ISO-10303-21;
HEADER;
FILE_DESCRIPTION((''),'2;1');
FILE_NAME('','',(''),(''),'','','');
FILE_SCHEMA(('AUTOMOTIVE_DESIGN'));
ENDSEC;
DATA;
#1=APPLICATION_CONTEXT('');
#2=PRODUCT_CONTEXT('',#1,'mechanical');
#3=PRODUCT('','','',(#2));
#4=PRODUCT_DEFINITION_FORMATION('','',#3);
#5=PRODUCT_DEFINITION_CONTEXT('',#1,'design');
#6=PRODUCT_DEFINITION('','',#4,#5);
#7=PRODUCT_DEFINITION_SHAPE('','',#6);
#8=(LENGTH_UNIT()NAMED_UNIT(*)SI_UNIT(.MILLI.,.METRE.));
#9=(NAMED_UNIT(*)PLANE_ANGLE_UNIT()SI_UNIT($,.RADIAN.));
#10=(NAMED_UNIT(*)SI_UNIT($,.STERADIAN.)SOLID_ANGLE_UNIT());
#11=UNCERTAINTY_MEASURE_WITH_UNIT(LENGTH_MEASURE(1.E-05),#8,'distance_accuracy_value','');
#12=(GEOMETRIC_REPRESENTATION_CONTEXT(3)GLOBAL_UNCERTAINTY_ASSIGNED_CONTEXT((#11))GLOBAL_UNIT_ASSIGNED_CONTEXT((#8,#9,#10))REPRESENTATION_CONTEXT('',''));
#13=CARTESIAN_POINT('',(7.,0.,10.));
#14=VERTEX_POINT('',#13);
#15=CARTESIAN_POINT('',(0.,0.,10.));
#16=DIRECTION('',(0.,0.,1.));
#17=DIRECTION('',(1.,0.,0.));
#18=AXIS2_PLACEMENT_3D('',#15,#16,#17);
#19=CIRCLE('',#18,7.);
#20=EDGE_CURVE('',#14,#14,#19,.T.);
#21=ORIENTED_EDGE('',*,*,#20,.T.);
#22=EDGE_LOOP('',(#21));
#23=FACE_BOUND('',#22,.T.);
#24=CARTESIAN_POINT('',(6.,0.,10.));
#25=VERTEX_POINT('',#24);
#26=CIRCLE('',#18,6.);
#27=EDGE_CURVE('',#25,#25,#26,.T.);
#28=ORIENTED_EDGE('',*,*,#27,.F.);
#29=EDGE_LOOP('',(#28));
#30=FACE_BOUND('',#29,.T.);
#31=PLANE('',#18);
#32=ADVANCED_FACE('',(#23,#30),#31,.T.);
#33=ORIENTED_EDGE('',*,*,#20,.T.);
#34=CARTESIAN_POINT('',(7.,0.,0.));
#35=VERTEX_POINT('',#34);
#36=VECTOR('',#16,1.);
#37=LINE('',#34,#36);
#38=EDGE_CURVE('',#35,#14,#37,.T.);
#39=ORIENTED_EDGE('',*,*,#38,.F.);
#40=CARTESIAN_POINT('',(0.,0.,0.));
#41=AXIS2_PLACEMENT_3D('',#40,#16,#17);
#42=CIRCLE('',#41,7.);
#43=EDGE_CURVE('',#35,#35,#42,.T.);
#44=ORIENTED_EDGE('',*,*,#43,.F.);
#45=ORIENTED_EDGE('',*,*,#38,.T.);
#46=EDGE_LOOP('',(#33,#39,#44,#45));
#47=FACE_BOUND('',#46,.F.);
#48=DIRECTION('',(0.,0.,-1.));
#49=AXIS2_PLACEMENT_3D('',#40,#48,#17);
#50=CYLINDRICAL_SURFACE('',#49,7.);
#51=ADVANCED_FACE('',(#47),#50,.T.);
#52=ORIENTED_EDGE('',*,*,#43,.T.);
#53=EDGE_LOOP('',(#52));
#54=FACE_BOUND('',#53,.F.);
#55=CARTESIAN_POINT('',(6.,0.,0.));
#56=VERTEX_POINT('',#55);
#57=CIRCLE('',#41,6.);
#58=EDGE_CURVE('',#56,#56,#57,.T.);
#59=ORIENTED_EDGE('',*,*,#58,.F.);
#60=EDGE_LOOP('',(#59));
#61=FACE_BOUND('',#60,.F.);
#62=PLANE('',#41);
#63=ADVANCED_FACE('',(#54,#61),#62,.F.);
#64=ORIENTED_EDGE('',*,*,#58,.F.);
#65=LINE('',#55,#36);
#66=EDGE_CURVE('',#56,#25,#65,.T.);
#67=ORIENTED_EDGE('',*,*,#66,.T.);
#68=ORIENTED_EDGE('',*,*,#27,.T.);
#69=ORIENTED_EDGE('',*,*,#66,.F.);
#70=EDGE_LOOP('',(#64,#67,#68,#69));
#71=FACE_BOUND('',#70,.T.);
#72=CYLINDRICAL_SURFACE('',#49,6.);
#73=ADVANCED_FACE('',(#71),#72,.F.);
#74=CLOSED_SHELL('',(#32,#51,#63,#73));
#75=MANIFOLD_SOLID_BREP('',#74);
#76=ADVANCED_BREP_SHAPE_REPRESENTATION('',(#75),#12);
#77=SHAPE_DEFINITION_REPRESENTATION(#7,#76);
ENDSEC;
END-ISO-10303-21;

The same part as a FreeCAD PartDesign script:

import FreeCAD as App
import Part
import Sketcher

V = App.Vector
Q = App.Units.Quantity

doc = App.newDocument("Part")
body = doc.addObject("PartDesign::Body", "Body")

sketch1 = doc.addObject("Sketcher::SketchObject", "Sketch")
body.addObject(sketch1)
sketch1.AttachmentSupport = (doc.XY_Plane, [""])
sketch1.MapMode = "FlatFace"
sketch1.addGeometry(Part.Circle(V(0, 0, 0), V(0, 0, 1), 7), False)
sketch1.addGeometry(Part.Circle(V(0, 0, 0), V(0, 0, 1), 6), False)
sketch1.addConstraint(Sketcher.Constraint("Coincident", 0, 3, -1, 1))
sketch1.addConstraint(Sketcher.Constraint("Coincident", 1, 3, -1, 1))
sketch1.addConstraint(Sketcher.Constraint("Diameter", 0, Q("14 mm")))
sketch1.addConstraint(Sketcher.Constraint("Diameter", 1, Q("12 mm")))
pad1 = doc.addObject("PartDesign::Pad", "Pad")
body.addObject(pad1)
pad1.Profile = sketch1
pad1.Length = 10

doc.recompute()
